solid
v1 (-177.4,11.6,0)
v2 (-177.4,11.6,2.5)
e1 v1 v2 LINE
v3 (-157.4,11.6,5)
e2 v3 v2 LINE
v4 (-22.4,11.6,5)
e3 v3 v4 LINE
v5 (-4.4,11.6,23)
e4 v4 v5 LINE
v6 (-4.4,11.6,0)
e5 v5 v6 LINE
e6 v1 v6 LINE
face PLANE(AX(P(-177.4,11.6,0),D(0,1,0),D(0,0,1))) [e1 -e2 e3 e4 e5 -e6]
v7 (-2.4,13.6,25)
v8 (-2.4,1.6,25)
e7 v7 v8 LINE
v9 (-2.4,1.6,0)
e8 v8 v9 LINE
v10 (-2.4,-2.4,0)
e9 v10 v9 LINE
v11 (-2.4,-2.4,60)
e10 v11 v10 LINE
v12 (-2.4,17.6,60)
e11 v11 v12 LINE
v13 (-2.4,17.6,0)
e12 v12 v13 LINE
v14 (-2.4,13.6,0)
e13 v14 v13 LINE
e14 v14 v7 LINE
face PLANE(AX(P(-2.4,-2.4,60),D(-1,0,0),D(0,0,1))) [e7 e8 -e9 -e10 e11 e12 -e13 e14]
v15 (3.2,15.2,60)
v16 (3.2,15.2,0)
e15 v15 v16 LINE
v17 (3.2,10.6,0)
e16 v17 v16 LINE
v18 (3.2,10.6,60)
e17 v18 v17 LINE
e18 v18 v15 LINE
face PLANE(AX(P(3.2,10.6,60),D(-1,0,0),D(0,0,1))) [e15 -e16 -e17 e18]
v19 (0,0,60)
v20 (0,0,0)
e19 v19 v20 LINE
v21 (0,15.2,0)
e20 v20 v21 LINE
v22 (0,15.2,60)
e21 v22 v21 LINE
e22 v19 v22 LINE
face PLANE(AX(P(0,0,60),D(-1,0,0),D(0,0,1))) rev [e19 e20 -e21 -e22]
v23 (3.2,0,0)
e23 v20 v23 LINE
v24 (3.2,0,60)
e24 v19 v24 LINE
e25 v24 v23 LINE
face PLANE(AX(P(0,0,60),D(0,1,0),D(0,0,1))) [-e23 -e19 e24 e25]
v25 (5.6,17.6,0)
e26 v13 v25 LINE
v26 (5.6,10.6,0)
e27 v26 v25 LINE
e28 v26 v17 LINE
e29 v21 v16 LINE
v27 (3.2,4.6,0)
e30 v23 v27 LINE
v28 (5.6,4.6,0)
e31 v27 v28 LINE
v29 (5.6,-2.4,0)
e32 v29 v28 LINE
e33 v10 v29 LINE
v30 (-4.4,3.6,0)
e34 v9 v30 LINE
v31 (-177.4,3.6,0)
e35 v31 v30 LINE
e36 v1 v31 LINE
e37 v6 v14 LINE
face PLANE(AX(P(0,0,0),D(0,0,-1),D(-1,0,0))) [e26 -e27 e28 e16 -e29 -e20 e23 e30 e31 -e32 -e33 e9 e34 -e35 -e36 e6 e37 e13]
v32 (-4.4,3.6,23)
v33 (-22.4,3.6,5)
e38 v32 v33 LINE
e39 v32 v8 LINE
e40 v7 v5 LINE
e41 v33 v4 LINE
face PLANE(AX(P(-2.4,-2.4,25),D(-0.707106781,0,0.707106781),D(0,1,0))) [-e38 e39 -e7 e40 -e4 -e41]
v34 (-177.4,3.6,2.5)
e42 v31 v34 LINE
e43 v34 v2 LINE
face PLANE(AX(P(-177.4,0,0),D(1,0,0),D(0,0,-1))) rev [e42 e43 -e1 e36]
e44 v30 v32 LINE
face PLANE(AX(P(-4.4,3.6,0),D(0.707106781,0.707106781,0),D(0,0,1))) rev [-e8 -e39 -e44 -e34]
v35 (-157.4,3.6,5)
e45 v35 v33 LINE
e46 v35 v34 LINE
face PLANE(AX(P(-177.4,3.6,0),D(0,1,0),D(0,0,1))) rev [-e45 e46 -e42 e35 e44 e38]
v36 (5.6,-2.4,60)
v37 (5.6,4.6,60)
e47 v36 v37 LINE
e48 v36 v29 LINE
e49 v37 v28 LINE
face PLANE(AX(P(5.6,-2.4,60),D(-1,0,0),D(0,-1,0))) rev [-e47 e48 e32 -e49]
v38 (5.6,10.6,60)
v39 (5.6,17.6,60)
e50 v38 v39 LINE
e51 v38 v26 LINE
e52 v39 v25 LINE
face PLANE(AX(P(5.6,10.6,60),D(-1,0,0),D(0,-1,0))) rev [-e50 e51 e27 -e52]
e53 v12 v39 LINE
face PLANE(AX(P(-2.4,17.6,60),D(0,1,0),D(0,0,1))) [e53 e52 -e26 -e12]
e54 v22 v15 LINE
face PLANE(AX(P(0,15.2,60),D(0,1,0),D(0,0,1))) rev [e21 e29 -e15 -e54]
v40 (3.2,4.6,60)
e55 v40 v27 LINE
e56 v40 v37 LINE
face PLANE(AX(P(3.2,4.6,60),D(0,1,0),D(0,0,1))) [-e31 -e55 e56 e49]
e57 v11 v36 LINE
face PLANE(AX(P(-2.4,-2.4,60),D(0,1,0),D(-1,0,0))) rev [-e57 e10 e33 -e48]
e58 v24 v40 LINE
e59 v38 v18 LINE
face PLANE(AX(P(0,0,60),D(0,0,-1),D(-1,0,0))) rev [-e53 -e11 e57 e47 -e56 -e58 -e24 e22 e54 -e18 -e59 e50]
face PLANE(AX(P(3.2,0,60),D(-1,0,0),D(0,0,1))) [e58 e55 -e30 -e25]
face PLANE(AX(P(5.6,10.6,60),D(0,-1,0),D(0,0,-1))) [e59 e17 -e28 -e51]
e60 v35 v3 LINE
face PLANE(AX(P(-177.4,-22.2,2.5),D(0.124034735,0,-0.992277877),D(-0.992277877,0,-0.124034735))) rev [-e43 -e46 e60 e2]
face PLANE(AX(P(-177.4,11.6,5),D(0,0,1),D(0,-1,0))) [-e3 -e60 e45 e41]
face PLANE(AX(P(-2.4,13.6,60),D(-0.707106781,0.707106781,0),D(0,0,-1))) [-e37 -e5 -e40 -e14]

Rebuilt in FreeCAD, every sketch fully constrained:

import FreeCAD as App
import Part
import Sketcher
from FreeCAD import Vector
Q = App.Units.Quantity


def edges_at(feature, points):
    """Names of the edges that pass closest to the given points."""
    edges = feature.Shape.Edges
    near = lambda p: min(range(len(edges)), key=lambda i: edges[i].distToShape(Part.Vertex(*p))[0])
    return sorted({f"Edge{near(p) + 1}" for p in points})


def add_polygon(sketch, points):
    """Adds a closed chain of lines whose ends are joined by coincident constraints."""
    first, n = sketch.GeometryCount, len(points)
    for a, b in zip(points, points[1:] + points[:1]):
        sketch.addGeometry(Part.LineSegment(App.Vector(*a, 0), App.Vector(*b, 0)), False)
    for i in range(n):
        sketch.addConstraint(Sketcher.Constraint("Coincident", first + i, 2, first + (i + 1) % n, 1))

doc = App.newDocument("Part")
body = doc.addObject("PartDesign::Body", "Body")

# Sketch on XY plane
sketch1 = body.newObject("Sketcher::SketchObject", "Sketch")
sketch1.AttachmentSupport = (doc.getObject("XY_Plane"), [""])
sketch1.MapMode = "FlatFace"
add_polygon(sketch1, [(3.2, 10.6), (5.6, 10.6), (5.6, 17.6), (-2.4, 17.6), (-2.4, -2.4), (5.6, -2.4), (5.6, 4.6), (3.2, 4.6), (3.2, 0), (0, 0), (0, 15.2), (3.2, 15.2)])  # lines 0-11
sketch1.addConstraint(Sketcher.Constraint("Horizontal", 0))
sketch1.addConstraint(Sketcher.Constraint("Vertical", 1))
sketch1.addConstraint(Sketcher.Constraint("Horizontal", 2))
sketch1.addConstraint(Sketcher.Constraint("Vertical", 3))
sketch1.addConstraint(Sketcher.Constraint("Horizontal", 4))
sketch1.addConstraint(Sketcher.Constraint("Vertical", 5))
sketch1.addConstraint(Sketcher.Constraint("Horizontal", 6))
sketch1.addConstraint(Sketcher.Constraint("Vertical", 7))
sketch1.addConstraint(Sketcher.Constraint("Horizontal", 8))
sketch1.addConstraint(Sketcher.Constraint("Vertical", 9))
sketch1.addConstraint(Sketcher.Constraint("Horizontal", 10))
sketch1.addConstraint(Sketcher.Constraint("Vertical", 11))
sketch1.addConstraint(Sketcher.Constraint("Coincident", 8, 2, -1, 1))
sketch1.addConstraint(Sketcher.Constraint("Vertical", 1, 2, 4, 2))
sketch1.addConstraint(Sketcher.Constraint("Vertical", 7, 2, 10, 2))
sketch1.addConstraint(Sketcher.Constraint("Equal", 1, 5))
sketch1.addConstraint(Sketcher.Constraint("Equal", 7, 11))
sketch1.addConstraint(Sketcher.Constraint("DistanceX", 2, 2, 2, 1, Q("8 mm")))
sketch1.addConstraint(Sketcher.Constraint("DistanceY", 1, 1, 1, 2, Q("7 mm")))
sketch1.addConstraint(Sketcher.Constraint("DistanceY", 3, 2, 3, 1, Q("20 mm")))
sketch1.addConstraint(Sketcher.Constraint("DistanceX", 0, 1, 0, 2, Q("2.4 mm")))
sketch1.addConstraint(Sketcher.Constraint("DistanceX", 8, 2, 8, 1, Q("3.2 mm")))
sketch1.addConstraint(Sketcher.Constraint("DistanceY", 7, 2, 7, 1, Q("4.6 mm")))
pad1 = body.newObject("PartDesign::Pad", "Pad")
pad1.Profile = sketch1
pad1.Length = 60

# Sketch on YZ plane
sketch2 = body.newObject("Sketcher::SketchObject", "Sketch001")
sketch2.AttachmentSupport = (doc.getObject("YZ_Plane"), [""])
sketch2.MapMode = "FlatFace"
sketch2.AttachmentOffset = App.Placement(Vector(0, 0, -2.4), App.Rotation())
add_polygon(sketch2, [(12, 0), (4, 0), (4, 5), (12, 5)])  # lines 0-3
sketch2.addConstraint(Sketcher.Constraint("Horizontal", 0))
sketch2.addConstraint(Sketcher.Constraint("Vertical", 1))
sketch2.addConstraint(Sketcher.Constraint("Horizontal", 2))
sketch2.addConstraint(Sketcher.Constraint("Vertical", 3))
sketch2.addConstraint(Sketcher.Constraint("PointOnObject", 0, 2, -1))
sketch2.addConstraint(Sketcher.Constraint("DistanceX", 0, 2, 0, 1, Q("8 mm")))
sketch2.addConstraint(Sketcher.Constraint("DistanceY", 1, 1, 1, 2, Q("5 mm")))
sketch2.addConstraint(Sketcher.Constraint("DistanceX", -1, 1, 0, 2, Q("3.6 mm")))
pad2 = body.newObject("PartDesign::Pad", "Pad001")
pad2.Profile = sketch2
pad2.Length = 175
pad2.Reversed = True
doc.recompute()

chamfer = body.newObject("PartDesign::Chamfer", "Chamfer")
chamfer.Base = (pad2, edges_at(pad2, [(-2.4, 7.6, 5)]))
chamfer.Size = 20

# Sketch on XZ plane
sketch3 = body.newObject("Sketcher::SketchObject", "Sketch002")
sketch3.AttachmentSupport = (doc.getObject("XZ_Plane"), [""])
sketch3.MapMode = "FlatFace"
sketch3.AttachmentOffset = App.Placement(Vector(0, 0, -11.6), App.Rotation())
add_polygon(sketch3, [(-157.4, 5), (-177.4, 2.5), (-177.4, 5)])  # lines 0-2
sketch3.addConstraint(Sketcher.Constraint("Vertical", 1))
sketch3.addConstraint(Sketcher.Constraint("Horizontal", 2))
sketch3.addConstraint(Sketcher.Constraint("DistanceX", 2, 1, 2, 2, Q("20 mm")))
sketch3.addConstraint(Sketcher.Constraint("DistanceY", 1, 1, 1, 2, Q("2.5 mm")))
sketch3.addConstraint(Sketcher.Constraint("DistanceY", -1, 1, 1, 2, Q("5 mm")))
sketch3.addConstraint(Sketcher.Constraint("DistanceX", 0, 2, -1, 1, Q("177.4 mm")))
pocket1 = body.newObject("PartDesign::Pocket", "Pocket")
pocket1.Profile = sketch3
pocket1.Length = 33.8
pocket1.Reversed = True
doc.recompute()

chamfer2 = body.newObject("PartDesign::Chamfer", "Chamfer001")
chamfer2.Base = (pocket1, edges_at(pocket1, [(-2.4, 3.6, 12.5), (-2.4, 11.6, 12.5)]))
chamfer2.Size = 2

doc.recompute()
